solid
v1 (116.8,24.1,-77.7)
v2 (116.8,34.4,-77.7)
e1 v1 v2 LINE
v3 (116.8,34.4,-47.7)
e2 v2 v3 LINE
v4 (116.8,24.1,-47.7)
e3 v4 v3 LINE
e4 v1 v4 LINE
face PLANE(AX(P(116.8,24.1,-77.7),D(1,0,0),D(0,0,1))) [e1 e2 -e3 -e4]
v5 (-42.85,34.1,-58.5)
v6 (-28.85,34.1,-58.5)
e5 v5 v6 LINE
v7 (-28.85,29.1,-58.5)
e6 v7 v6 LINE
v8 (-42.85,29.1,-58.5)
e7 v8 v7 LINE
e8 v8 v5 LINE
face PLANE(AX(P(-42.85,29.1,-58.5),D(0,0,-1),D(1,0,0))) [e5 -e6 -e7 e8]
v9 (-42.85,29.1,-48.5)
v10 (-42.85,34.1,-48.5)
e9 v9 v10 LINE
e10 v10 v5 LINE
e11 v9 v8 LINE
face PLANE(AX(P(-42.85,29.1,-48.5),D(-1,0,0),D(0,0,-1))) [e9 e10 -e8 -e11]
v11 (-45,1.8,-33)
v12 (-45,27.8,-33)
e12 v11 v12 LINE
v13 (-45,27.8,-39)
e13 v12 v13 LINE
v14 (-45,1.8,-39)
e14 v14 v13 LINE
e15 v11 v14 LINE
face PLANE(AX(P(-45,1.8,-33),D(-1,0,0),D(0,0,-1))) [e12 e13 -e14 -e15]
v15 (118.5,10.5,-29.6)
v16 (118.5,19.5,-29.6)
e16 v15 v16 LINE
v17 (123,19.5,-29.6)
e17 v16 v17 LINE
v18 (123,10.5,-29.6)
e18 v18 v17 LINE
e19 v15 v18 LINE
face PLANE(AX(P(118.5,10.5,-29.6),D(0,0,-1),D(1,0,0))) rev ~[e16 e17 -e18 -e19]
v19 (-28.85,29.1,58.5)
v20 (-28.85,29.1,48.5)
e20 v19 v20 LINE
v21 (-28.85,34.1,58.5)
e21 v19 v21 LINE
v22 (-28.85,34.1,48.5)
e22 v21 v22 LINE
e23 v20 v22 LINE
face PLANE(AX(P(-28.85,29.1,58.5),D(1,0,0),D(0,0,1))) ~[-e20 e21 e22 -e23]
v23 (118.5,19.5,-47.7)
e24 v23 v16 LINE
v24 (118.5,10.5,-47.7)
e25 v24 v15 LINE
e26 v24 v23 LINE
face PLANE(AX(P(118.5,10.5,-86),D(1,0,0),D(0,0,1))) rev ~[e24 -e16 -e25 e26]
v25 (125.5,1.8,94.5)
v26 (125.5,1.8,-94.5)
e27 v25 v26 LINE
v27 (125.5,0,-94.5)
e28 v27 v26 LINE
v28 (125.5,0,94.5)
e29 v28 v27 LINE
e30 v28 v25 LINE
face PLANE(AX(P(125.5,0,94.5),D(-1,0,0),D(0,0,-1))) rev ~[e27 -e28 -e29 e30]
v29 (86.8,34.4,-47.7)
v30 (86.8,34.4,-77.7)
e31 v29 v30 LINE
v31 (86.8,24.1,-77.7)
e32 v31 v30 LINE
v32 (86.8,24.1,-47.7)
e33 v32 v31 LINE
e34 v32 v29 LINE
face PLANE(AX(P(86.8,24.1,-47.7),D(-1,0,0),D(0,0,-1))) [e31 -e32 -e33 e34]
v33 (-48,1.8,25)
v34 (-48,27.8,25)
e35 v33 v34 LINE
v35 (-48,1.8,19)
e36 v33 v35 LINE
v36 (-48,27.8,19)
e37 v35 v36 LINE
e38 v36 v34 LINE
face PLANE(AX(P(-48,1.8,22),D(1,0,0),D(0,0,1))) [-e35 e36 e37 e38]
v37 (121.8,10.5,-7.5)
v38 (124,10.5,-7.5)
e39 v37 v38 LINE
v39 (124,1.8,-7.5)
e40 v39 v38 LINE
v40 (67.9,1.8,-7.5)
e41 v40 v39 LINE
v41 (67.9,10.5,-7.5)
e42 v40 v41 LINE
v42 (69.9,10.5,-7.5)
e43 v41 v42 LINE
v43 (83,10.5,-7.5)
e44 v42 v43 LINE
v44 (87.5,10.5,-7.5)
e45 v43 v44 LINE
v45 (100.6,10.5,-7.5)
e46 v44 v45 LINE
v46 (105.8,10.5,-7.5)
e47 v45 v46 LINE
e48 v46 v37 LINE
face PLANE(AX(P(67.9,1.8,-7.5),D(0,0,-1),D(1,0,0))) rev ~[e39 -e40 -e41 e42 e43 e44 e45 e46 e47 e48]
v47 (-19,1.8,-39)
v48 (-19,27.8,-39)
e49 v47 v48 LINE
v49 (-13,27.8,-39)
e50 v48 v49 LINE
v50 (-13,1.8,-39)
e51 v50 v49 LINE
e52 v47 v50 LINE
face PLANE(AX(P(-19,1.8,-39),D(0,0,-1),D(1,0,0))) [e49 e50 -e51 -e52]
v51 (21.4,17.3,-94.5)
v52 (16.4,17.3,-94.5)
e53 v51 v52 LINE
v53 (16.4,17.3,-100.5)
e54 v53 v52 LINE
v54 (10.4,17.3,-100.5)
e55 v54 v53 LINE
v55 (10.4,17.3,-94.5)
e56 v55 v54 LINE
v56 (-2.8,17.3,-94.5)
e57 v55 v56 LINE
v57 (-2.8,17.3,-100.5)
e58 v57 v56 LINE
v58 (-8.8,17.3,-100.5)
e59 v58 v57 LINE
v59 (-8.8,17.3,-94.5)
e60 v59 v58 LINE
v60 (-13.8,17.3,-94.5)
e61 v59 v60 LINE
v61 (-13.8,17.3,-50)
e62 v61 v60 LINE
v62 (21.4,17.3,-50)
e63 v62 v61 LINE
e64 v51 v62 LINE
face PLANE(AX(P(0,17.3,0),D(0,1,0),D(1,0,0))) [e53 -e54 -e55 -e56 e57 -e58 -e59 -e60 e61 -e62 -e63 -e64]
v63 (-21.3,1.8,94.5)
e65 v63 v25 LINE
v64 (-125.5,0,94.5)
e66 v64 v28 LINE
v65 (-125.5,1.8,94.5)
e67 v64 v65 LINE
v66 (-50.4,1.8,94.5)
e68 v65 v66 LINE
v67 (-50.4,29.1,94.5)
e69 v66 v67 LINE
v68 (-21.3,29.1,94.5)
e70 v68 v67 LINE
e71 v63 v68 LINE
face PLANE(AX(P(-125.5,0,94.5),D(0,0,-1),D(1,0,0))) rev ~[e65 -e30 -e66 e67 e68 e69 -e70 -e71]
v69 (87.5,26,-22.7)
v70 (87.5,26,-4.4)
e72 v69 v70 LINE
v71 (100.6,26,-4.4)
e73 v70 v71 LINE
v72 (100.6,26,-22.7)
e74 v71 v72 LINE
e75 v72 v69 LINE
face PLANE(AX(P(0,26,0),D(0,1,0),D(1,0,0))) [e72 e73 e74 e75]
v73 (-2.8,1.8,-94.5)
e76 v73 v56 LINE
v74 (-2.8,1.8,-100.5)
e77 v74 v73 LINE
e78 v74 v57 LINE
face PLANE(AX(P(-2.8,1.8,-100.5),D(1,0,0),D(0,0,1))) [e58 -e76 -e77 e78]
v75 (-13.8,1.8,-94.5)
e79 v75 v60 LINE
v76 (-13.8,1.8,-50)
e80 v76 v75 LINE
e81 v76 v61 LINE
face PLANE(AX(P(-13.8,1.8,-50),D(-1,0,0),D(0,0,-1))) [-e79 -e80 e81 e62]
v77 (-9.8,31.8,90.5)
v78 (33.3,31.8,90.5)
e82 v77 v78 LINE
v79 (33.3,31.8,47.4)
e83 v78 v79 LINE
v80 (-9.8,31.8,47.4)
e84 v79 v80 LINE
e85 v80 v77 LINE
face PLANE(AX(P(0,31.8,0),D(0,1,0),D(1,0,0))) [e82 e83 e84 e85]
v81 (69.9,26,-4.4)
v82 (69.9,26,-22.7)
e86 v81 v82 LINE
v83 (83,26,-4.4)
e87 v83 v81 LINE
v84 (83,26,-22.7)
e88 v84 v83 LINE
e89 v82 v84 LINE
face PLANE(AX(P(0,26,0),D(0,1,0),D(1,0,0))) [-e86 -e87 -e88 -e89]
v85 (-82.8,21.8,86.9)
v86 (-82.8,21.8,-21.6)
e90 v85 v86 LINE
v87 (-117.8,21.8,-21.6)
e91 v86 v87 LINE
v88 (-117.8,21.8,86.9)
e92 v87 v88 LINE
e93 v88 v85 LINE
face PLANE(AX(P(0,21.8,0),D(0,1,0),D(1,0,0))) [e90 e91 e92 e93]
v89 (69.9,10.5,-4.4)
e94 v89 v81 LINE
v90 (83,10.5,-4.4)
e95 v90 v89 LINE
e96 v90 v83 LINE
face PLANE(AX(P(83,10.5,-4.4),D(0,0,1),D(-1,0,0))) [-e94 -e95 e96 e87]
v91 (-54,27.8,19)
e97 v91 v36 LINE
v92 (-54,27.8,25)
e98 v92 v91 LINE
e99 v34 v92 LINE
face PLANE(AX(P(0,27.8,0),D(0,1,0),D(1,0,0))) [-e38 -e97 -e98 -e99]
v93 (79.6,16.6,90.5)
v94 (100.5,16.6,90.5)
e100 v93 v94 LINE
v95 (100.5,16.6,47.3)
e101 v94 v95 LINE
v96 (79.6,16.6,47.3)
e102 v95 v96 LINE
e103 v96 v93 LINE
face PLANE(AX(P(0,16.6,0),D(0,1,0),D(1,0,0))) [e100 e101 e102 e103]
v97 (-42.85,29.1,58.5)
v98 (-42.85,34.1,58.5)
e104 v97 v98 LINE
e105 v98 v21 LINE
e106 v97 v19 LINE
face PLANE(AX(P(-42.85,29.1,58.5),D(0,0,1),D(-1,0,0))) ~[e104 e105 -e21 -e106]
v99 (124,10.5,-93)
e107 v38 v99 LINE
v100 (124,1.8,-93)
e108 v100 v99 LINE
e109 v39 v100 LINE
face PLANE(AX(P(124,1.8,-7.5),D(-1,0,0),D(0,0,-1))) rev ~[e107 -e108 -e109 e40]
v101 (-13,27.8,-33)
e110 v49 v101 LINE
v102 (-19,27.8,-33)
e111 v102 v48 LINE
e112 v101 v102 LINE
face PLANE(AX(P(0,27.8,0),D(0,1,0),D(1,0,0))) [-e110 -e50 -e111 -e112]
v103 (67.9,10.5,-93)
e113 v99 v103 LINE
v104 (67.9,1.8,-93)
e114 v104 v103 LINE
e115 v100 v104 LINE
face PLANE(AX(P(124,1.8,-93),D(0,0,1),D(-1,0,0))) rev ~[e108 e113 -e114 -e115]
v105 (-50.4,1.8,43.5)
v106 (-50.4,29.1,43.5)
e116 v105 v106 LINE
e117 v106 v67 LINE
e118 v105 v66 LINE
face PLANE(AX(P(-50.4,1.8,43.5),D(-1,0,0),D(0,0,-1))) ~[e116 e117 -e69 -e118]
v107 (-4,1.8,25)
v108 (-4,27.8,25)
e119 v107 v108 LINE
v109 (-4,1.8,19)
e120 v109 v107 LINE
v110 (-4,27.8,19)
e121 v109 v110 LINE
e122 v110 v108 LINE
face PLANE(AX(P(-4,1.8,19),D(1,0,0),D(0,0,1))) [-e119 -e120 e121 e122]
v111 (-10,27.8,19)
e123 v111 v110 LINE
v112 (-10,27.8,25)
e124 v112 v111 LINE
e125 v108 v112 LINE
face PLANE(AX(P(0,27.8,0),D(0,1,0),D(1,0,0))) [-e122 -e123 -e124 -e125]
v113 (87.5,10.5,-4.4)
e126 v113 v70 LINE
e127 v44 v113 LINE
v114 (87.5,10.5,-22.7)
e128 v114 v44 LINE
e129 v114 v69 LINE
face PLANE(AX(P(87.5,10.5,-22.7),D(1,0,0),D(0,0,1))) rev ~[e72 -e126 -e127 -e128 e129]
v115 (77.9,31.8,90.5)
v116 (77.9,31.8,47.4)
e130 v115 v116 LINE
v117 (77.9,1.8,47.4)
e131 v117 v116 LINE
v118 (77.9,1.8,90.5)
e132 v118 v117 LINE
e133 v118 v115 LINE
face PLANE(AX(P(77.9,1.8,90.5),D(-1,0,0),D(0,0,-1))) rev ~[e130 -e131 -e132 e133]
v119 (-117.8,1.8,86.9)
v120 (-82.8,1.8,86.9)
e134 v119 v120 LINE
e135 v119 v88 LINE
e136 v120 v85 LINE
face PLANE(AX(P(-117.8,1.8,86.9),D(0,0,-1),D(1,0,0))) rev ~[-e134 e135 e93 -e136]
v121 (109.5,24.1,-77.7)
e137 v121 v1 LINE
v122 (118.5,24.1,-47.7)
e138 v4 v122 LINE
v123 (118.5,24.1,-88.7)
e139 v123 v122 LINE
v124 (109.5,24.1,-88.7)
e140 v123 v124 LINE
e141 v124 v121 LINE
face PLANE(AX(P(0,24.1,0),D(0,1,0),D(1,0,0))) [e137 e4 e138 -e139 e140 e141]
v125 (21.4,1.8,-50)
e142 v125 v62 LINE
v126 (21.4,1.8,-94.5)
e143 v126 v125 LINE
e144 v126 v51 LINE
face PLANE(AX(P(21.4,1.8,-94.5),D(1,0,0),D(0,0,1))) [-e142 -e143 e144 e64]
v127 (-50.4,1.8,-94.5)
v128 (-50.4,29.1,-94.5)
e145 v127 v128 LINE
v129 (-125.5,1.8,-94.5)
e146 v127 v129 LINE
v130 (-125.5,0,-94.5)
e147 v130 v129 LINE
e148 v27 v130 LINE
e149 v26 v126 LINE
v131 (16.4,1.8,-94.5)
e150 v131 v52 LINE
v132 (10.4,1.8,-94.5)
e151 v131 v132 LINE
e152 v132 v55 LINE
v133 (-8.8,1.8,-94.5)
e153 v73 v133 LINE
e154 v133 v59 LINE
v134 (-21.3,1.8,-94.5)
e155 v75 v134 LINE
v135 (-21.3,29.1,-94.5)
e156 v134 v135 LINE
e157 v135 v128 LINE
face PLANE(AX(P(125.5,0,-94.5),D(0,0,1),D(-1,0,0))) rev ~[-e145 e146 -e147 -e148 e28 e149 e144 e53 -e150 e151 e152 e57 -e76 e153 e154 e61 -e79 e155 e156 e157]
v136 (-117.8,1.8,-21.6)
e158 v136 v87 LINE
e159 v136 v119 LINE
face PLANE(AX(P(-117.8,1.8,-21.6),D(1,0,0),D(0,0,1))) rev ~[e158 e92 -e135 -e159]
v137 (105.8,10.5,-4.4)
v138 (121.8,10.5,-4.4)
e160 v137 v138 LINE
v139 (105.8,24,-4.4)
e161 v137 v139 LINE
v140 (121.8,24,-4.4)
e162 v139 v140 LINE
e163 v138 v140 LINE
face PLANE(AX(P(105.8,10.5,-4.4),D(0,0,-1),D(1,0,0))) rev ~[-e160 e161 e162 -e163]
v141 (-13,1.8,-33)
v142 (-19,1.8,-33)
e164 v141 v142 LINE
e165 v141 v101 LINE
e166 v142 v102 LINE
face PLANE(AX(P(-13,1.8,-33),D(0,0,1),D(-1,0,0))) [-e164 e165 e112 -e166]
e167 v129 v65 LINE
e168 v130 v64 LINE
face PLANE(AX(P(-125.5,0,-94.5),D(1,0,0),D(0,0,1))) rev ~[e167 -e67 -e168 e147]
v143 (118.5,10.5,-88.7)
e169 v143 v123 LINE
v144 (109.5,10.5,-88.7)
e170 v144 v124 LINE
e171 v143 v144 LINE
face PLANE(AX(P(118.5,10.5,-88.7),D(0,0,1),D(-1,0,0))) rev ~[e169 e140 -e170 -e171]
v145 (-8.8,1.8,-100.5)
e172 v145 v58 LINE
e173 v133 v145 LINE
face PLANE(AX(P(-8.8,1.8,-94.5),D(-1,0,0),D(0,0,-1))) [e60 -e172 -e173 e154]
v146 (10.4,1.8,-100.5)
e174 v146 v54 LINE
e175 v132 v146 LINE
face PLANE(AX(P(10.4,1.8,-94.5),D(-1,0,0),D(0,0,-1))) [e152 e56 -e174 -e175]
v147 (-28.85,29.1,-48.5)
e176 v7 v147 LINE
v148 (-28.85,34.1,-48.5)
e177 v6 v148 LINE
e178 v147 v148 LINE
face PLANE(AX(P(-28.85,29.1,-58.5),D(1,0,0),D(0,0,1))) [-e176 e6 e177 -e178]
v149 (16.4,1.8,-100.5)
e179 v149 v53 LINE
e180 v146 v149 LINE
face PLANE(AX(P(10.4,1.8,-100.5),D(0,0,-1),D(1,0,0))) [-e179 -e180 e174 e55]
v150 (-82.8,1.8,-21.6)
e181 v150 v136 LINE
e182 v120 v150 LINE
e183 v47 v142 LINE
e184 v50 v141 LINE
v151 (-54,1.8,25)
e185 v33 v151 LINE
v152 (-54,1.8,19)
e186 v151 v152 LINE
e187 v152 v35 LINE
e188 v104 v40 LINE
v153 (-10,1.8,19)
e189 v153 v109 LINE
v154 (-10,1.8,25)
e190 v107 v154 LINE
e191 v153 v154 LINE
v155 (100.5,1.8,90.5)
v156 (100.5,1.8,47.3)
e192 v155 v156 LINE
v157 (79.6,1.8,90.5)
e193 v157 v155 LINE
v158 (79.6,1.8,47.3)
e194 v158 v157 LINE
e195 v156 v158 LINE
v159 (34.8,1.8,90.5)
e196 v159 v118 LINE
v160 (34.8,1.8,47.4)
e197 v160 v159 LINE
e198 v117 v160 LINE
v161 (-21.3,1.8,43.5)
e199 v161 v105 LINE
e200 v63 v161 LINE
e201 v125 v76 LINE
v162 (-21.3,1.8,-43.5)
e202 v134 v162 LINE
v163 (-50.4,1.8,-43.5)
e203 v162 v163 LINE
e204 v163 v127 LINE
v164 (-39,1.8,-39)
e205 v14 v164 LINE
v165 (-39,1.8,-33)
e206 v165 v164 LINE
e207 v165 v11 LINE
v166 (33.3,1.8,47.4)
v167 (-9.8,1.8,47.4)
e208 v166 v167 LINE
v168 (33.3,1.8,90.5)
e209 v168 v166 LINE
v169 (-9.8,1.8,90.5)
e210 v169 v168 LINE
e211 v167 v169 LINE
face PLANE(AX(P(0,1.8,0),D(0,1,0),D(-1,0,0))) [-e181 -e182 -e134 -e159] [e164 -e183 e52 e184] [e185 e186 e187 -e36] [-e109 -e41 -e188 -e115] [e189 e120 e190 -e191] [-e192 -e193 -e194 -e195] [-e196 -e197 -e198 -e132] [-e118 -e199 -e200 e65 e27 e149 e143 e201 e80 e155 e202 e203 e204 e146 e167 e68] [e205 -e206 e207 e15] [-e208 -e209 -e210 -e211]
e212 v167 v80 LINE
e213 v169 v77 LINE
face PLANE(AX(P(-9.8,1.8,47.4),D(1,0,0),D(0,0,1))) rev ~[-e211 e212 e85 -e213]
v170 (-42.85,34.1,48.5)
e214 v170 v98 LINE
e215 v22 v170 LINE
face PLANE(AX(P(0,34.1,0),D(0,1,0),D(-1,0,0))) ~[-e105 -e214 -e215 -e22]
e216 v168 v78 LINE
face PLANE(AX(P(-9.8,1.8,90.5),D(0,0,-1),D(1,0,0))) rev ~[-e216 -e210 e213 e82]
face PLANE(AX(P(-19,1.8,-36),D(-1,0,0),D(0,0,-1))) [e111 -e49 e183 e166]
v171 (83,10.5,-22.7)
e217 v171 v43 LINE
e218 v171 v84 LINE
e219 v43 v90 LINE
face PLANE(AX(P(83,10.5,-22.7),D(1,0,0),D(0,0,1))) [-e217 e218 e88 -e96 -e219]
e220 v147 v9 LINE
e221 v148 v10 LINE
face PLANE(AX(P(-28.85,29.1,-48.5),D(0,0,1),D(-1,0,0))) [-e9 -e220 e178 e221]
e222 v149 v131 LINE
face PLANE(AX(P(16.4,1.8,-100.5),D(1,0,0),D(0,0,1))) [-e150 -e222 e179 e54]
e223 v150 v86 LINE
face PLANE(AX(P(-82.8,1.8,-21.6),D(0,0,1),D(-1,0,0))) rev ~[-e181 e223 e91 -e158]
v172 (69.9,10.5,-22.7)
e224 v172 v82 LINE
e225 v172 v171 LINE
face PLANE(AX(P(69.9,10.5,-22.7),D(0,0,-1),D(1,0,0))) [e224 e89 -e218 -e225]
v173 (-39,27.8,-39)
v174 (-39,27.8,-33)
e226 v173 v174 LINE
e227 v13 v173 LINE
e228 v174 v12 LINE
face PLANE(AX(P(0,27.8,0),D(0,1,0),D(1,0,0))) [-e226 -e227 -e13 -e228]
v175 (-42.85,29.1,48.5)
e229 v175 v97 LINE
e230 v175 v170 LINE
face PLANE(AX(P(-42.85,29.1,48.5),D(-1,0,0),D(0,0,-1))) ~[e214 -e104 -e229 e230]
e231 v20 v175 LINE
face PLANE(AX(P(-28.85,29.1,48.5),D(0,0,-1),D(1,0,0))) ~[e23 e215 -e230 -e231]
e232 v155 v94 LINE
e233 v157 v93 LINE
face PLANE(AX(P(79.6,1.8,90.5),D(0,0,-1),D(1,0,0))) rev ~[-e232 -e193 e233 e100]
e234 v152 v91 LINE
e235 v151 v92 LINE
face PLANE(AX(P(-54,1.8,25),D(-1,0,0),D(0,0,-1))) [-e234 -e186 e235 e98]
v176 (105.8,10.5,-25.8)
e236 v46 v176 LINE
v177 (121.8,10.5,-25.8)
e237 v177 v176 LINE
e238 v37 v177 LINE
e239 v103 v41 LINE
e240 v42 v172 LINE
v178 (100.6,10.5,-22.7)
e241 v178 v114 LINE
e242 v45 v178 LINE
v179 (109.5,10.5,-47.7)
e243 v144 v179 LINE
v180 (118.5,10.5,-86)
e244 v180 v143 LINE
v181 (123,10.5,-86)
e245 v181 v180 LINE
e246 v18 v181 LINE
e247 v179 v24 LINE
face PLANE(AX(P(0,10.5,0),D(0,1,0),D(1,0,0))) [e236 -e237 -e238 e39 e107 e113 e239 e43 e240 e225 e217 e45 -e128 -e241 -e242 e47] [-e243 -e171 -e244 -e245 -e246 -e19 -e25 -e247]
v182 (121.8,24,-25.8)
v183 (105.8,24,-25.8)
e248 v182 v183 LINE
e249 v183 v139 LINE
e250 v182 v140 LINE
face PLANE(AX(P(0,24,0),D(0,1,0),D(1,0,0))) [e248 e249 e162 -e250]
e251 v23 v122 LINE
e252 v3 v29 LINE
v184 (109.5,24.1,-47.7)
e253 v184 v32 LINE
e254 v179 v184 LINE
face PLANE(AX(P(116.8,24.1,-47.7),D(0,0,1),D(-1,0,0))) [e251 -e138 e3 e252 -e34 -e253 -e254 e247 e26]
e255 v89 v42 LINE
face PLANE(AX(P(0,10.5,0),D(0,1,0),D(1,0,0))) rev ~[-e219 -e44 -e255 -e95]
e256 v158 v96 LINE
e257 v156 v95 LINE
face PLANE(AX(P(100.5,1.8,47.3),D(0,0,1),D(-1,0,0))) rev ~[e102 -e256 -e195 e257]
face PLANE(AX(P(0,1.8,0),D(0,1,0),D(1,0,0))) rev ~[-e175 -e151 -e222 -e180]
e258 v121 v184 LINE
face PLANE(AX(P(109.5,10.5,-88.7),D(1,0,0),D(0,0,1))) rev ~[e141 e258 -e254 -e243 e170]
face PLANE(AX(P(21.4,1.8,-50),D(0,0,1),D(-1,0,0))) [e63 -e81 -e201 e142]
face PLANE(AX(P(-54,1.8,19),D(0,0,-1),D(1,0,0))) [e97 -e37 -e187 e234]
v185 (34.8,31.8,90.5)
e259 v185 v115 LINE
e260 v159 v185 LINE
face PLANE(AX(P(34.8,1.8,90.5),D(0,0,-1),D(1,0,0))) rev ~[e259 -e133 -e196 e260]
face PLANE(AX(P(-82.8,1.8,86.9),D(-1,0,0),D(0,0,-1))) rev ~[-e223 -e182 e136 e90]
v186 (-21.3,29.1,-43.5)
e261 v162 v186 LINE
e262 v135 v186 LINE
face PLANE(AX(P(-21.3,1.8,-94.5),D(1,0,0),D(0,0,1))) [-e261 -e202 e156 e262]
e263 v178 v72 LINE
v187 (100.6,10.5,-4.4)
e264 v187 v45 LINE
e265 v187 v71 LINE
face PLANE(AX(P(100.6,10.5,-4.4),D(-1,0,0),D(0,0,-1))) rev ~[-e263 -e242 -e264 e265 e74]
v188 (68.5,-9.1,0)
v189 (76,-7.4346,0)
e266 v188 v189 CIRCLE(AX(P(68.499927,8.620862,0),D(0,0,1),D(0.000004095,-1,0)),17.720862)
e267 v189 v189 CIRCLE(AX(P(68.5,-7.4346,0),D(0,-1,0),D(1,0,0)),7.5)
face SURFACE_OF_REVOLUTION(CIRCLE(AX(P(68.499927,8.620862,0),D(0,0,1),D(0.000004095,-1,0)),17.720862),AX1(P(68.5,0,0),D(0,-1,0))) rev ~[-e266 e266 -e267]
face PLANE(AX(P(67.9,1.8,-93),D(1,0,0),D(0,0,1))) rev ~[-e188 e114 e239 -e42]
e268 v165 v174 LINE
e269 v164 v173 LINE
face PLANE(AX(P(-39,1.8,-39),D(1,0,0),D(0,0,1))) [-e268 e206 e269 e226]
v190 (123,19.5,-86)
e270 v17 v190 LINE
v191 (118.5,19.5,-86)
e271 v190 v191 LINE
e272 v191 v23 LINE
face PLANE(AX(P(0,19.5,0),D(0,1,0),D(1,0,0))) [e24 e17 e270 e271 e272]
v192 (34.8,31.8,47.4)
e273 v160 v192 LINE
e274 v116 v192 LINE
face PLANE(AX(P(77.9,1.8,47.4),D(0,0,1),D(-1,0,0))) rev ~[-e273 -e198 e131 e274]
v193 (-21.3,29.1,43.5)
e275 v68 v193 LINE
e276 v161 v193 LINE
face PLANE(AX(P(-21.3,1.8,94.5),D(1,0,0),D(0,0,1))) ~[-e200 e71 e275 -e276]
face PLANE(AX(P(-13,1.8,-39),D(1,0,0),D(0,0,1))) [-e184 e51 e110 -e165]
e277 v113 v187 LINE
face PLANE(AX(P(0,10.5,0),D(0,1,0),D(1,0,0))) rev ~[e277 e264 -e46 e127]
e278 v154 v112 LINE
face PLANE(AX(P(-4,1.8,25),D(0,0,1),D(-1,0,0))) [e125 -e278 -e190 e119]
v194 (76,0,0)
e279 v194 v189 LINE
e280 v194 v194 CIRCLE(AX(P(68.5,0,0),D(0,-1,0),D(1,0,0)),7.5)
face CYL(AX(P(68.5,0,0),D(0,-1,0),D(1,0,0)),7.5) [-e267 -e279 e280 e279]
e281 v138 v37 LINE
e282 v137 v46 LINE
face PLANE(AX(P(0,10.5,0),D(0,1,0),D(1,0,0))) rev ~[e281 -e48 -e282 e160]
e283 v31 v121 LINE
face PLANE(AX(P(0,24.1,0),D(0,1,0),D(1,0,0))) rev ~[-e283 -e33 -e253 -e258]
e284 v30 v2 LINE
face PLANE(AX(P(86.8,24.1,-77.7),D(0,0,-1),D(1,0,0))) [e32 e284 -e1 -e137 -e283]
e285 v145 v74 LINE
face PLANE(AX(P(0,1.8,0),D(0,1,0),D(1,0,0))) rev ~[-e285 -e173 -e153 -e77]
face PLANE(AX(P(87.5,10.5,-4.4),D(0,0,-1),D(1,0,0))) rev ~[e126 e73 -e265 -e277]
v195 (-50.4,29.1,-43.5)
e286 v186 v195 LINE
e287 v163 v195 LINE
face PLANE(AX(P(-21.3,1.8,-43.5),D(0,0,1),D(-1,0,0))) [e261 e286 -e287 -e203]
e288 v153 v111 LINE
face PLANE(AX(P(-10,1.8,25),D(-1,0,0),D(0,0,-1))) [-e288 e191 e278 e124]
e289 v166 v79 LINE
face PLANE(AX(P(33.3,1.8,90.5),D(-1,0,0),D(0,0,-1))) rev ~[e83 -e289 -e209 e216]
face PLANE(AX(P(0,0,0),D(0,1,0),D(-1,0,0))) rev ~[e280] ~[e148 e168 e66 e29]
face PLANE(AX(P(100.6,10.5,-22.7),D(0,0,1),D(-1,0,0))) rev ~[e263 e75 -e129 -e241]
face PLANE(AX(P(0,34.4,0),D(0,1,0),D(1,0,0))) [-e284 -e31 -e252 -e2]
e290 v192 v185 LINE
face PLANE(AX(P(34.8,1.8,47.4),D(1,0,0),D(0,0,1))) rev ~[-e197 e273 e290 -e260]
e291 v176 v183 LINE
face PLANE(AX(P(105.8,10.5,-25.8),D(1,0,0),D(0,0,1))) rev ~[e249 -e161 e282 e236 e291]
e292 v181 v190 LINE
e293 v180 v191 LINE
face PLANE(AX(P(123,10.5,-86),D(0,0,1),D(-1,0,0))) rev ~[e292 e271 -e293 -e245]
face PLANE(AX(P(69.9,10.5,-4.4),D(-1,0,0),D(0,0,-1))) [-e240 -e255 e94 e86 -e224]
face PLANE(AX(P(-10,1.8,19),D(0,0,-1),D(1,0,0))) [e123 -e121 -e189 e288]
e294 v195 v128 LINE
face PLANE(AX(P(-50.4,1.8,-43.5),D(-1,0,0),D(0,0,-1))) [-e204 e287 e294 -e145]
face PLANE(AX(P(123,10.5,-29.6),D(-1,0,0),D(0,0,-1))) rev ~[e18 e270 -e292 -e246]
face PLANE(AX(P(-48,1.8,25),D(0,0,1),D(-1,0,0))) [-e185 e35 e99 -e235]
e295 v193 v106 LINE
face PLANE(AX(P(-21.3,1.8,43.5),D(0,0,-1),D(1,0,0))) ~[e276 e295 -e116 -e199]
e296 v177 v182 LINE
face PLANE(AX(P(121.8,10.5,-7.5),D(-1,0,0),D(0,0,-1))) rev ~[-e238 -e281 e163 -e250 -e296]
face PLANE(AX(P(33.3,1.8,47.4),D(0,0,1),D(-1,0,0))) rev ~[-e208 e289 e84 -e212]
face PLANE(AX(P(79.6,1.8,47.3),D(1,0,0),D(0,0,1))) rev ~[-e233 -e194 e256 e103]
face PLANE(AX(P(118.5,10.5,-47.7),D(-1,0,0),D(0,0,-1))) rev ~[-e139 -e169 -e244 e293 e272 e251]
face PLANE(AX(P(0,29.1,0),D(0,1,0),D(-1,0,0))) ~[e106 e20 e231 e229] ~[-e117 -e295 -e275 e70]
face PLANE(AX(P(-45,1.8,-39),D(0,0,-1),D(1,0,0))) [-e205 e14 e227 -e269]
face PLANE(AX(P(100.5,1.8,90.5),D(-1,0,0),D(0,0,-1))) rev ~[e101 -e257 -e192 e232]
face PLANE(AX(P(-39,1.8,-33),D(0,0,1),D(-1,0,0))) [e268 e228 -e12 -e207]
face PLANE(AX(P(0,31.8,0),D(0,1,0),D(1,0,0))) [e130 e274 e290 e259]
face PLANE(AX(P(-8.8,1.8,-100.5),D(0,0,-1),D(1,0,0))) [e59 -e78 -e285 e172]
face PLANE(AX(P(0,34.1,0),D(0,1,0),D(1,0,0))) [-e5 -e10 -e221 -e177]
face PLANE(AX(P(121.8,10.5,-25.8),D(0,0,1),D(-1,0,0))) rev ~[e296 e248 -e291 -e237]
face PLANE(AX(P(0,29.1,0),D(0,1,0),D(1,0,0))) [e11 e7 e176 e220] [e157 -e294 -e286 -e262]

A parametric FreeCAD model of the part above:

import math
import FreeCAD as App
import Part
import Sketcher
Q = App.Units.Quantity

doc = App.newDocument("Part")
body = doc.addObject("PartDesign::Body", "Body")

# Sketch on XZ plane
sketch1 = body.newObject("Sketcher::SketchObject", "Sketch")
sketch1.AttachmentSupport = (doc.getObject("XZ_Plane"), [""])
sketch1.MapMode = "FlatFace"
sketch1.addGeometry([
    Part.LineSegment(App.Vector(-126, -94, 0), App.Vector(-126, 94, 0)),
    Part.LineSegment(App.Vector(-126, 94, 0), App.Vector(126, 94, 0)),
    Part.LineSegment(App.Vector(126, 94, 0), App.Vector(126, -94, 0)),
    Part.LineSegment(App.Vector(126, -94, 0), App.Vector(-126, -94, 0)),
], False)
sketch1.addConstraint([
    Sketcher.Constraint("Coincident", 0, 2, 1, 1),
    Sketcher.Constraint("Coincident", 1, 2, 2, 1),
    Sketcher.Constraint("Coincident", 2, 2, 3, 1),
    Sketcher.Constraint("Coincident", 3, 2, 0, 1),
    Sketcher.Constraint("Vertical", 0),
    Sketcher.Constraint("Horizontal", 1),
    Sketcher.Constraint("Vertical", 2),
    Sketcher.Constraint("Horizontal", 3),
    Sketcher.Constraint("Symmetric", 0, 2, 2, 2, -1, 1),
    Sketcher.Constraint("DistanceX", 1, 1, 1, 2, Q("251 mm")),
    Sketcher.Constraint("DistanceY", 0, 1, 0, 2, Q("189 mm")),
])
pad1 = body.newObject("PartDesign::Pad", "Pad")
pad1.Profile = sketch1
pad1.Length = 1.8
pad1.Reversed = True

# Sketch on XZ plane
sketch2 = body.newObject("Sketcher::SketchObject", "Sketch001")
sketch2.AttachmentSupport = (doc.getObject("XZ_Plane"), [""])
sketch2.MapMode = "FlatFace"
sketch2.AttachmentOffset = App.Placement(App.Vector(0, 0, -1.8), App.Rotation())
sketch2.addGeometry([
    Part.LineSegment(App.Vector(124, -8, 0), App.Vector(124, -93, 0)),
    Part.LineSegment(App.Vector(124, -93, 0), App.Vector(68, -93, 0)),
    Part.LineSegment(App.Vector(68, -93, 0), App.Vector(68, -8, 0)),
    Part.LineSegment(App.Vector(68, -8, 0), App.Vector(124, -8, 0)),
], False)
sketch2.addConstraint([
    Sketcher.Constraint("Coincident", 0, 2, 1, 1),
    Sketcher.Constraint("Coincident", 1, 2, 2, 1),
    Sketcher.Constraint("Coincident", 2, 2, 3, 1),
    Sketcher.Constraint("Coincident", 3, 2, 0, 1),
    Sketcher.Constraint("Vertical", 0),
    Sketcher.Constraint("Horizontal", 1),
    Sketcher.Constraint("Vertical", 2),
    Sketcher.Constraint("Horizontal", 3),
    Sketcher.Constraint("DistanceX", 1, 2, 1, 1, Q("56.1 mm")),
    Sketcher.Constraint("DistanceY", 0, 2, 0, 1, Q("85.5 mm")),
    Sketcher.Constraint("DistanceX", -1, 1, 0, 2, Q("124 mm")),
    Sketcher.Constraint("DistanceY", 0, 2, -1, 1, Q("93 mm")),
])
pad2 = body.newObject("PartDesign::Pad", "Pad001")
pad2.Profile = sketch2
pad2.Length = 8.7
pad2.Reversed = True

# Sketch on XZ plane
sketch3 = body.newObject("Sketcher::SketchObject", "Sketch002")
sketch3.AttachmentSupport = (doc.getObject("XZ_Plane"), [""])
sketch3.MapMode = "FlatFace"
sketch3.AttachmentOffset = App.Placement(App.Vector(0, 0, -10.5), App.Rotation())
sketch3.addGeometry([
    Part.LineSegment(App.Vector(122, -26, 0), App.Vector(106, -26, 0)),
    Part.LineSegment(App.Vector(106, -26, 0), App.Vector(106, -4, 0)),
    Part.LineSegment(App.Vector(106, -4, 0), App.Vector(122, -4, 0)),
    Part.LineSegment(App.Vector(122, -4, 0), App.Vector(122, -26, 0)),
], False)
sketch3.addConstraint([
    Sketcher.Constraint("Coincident", 0, 2, 1, 1),
    Sketcher.Constraint("Coincident", 1, 2, 2, 1),
    Sketcher.Constraint("Coincident", 2, 2, 3, 1),
    Sketcher.Constraint("Coincident", 3, 2, 0, 1),
    Sketcher.Constraint("Horizontal", 0),
    Sketcher.Constraint("Vertical", 1),
    Sketcher.Constraint("Horizontal", 2),
    Sketcher.Constraint("Vertical", 3),
    Sketcher.Constraint("DistanceX", 0, 2, 0, 1, Q("16 mm")),
    Sketcher.Constraint("DistanceY", 1, 1, 1, 2, Q("21.4 mm")),
    Sketcher.Constraint("DistanceX", -1, 1, 0, 2, Q("105.8 mm")),
    Sketcher.Constraint("DistanceY", 0, 2, -1, 1, Q("25.8 mm")),
])
pad3 = body.newObject("PartDesign::Pad", "Pad002")
pad3.Profile = sketch3
pad3.Length = 13.5
pad3.Reversed = True

# Sketch on XZ plane
sketch4 = body.newObject("Sketcher::SketchObject", "Sketch003")
sketch4.AttachmentSupport = (doc.getObject("XZ_Plane"), [""])
sketch4.MapMode = "FlatFace"
sketch4.AttachmentOffset = App.Placement(App.Vector(0, 0, -10.5), App.Rotation())
sketch4.addGeometry([
    Part.LineSegment(App.Vector(83, -23, 0), App.Vector(70, -23, 0)),  # 0
    Part.LineSegment(App.Vector(70, -23, 0), App.Vector(70, -4, 0)),  # 1
    Part.LineSegment(App.Vector(70, -4, 0), App.Vector(83, -4, 0)),  # 2
    Part.LineSegment(App.Vector(83, -4, 0), App.Vector(83, -23, 0)),  # 3
    Part.LineSegment(App.Vector(88, -23, 0), App.Vector(88, -4, 0)),  # 4
    Part.LineSegment(App.Vector(88, -4, 0), App.Vector(101, -4, 0)),  # 5
    Part.LineSegment(App.Vector(101, -4, 0), App.Vector(101, -23, 0)),  # 6
    Part.LineSegment(App.Vector(101, -23, 0), App.Vector(88, -23, 0)),  # 7
], False)
sketch4.addConstraint([
    Sketcher.Constraint("Coincident", 0, 2, 1, 1),
    Sketcher.Constraint("Coincident", 1, 2, 2, 1),
    Sketcher.Constraint("Coincident", 2, 2, 3, 1),
    Sketcher.Constraint("Coincident", 3, 2, 0, 1),
    Sketcher.Constraint("Coincident", 4, 2, 5, 1),
    Sketcher.Constraint("Coincident", 5, 2, 6, 1),
    Sketcher.Constraint("Coincident", 6, 2, 7, 1),
    Sketcher.Constraint("Coincident", 7, 2, 4, 1),
    Sketcher.Constraint("Horizontal", 0),
    Sketcher.Constraint("Vertical", 1),
    Sketcher.Constraint("Horizontal", 2),
    Sketcher.Constraint("Vertical", 3),
    Sketcher.Constraint("Vertical", 4),
    Sketcher.Constraint("Horizontal", 5),
    Sketcher.Constraint("Vertical", 6),
    Sketcher.Constraint("Horizontal", 7),
    Sketcher.Constraint("Horizontal", 2, 2, 4, 2),
    Sketcher.Constraint("Horizontal", 3, 2, 6, 2),
    Sketcher.Constraint("Equal", 2, 5),
    Sketcher.Constraint("DistanceX", 0, 2, 0, 1, Q("13.1 mm")),
    Sketcher.Constraint("DistanceY", 1, 1, 1, 2, Q("18.3 mm")),
    Sketcher.Constraint("DistanceX", 2, 2, 4, 2, Q("4.5 mm")),
    Sketcher.Constraint("DistanceX", -1, 1, 2, 2, Q("83 mm")),
    Sketcher.Constraint("DistanceY", 0, 2, -1, 1, Q("22.7 mm")),
])
pad4 = body.newObject("PartDesign::Pad", "Pad003")
pad4.Profile = sketch4
pad4.Length = 15.5
pad4.Reversed = True

# Sketch on XZ plane
sketch5 = body.newObject("Sketcher::SketchObject", "Sketch004")
sketch5.AttachmentSupport = (doc.getObject("XZ_Plane"), [""])
sketch5.MapMode = "FlatFace"
sketch5.AttachmentOffset = App.Placement(App.Vector(0, 0, -10.5), App.Rotation())
sketch5.addGeometry([
    Part.LineSegment(App.Vector(123, -29.6, 0), App.Vector(123, -86, 0)),
    Part.LineSegment(App.Vector(123, -86, 0), App.Vector(118.5, -86, 0)),
    Part.LineSegment(App.Vector(118.5, -86, 0), App.Vector(118.5, -29.6, 0)),
    Part.LineSegment(App.Vector(118.5, -29.6, 0), App.Vector(123, -29.6, 0)),
], False)
sketch5.addConstraint([
    Sketcher.Constraint("Coincident", 0, 2, 1, 1),
    Sketcher.Constraint("Coincident", 1, 2, 2, 1),
    Sketcher.Constraint("Coincident", 2, 2, 3, 1),
    Sketcher.Constraint("Coincident", 3, 2, 0, 1),
    Sketcher.Constraint("Vertical", 0),
    Sketcher.Constraint("Horizontal", 1),
    Sketcher.Constraint("Vertical", 2),
    Sketcher.Constraint("Horizontal", 3),
    Sketcher.Constraint("DistanceX", 1, 2, 1, 1, Q("4.5 mm")),
    Sketcher.Constraint("DistanceY", 0, 2, 0, 1, Q("56.4 mm")),
    Sketcher.Constraint("DistanceX", -1, 1, 0, 2, Q("123 mm")),
    Sketcher.Constraint("DistanceY", 0, 2, -1, 1, Q("86 mm")),
])
pad5 = body.newObject("PartDesign::Pad", "Pad004")
pad5.Profile = sketch5
pad5.Length = 9
pad5.Reversed = True

# Sketch on XZ plane
sketch6 = body.newObject("Sketcher::SketchObject", "Sketch005")
sketch6.AttachmentSupport = (doc.getObject("XZ_Plane"), [""])
sketch6.MapMode = "FlatFace"
sketch6.AttachmentOffset = App.Placement(App.Vector(0, 0, -10.5), App.Rotation())
sketch6.addGeometry([
    Part.LineSegment(App.Vector(110, -48, 0), App.Vector(118, -48, 0)),
    Part.LineSegment(App.Vector(118, -48, 0), App.Vector(118, -89, 0)),
    Part.LineSegment(App.Vector(118, -89, 0), App.Vector(110, -89, 0)),
    Part.LineSegment(App.Vector(110, -89, 0), App.Vector(110, -48, 0)),
], False)
sketch6.addConstraint([
    Sketcher.Constraint("Coincident", 0, 2, 1, 1),
    Sketcher.Constraint("Coincident", 1, 2, 2, 1),
    Sketcher.Constraint("Coincident", 2, 2, 3, 1),
    Sketcher.Constraint("Coincident", 3, 2, 0, 1),
    Sketcher.Constraint("Horizontal", 0),
    Sketcher.Constraint("Vertical", 1),
    Sketcher.Constraint("Horizontal", 2),
    Sketcher.Constraint("Vertical", 3),
    Sketcher.Constraint("DistanceX", 0, 1, 0, 2, Q("9 mm")),
    Sketcher.Constraint("DistanceY", 1, 2, 1, 1, Q("41 mm")),
    Sketcher.Constraint("DistanceX", -1, 1, 0, 2, Q("118.5 mm")),
    Sketcher.Constraint("DistanceY", 0, 2, -1, 1, Q("47.7 mm")),
])
pad6 = body.newObject("PartDesign::Pad", "Pad005")
pad6.Profile = sketch6
pad6.Length = 13.6
pad6.Reversed = True

# Sketch on XZ plane
sketch7 = body.newObject("Sketcher::SketchObject", "Sketch006")
sketch7.AttachmentSupport = (doc.getObject("XZ_Plane"), [""])
sketch7.MapMode = "FlatFace"
sketch7.AttachmentOffset = App.Placement(App.Vector(0, 0, -24.1), App.Rotation())
sketch7.addGeometry([
    Part.LineSegment(App.Vector(87, -48, 0), App.Vector(117, -48, 0)),
    Part.LineSegment(App.Vector(117, -48, 0), App.Vector(117, -78, 0)),
    Part.LineSegment(App.Vector(117, -78, 0), App.Vector(87, -78, 0)),
    Part.LineSegment(App.Vector(87, -78, 0), App.Vector(87, -48, 0)),
], False)
sketch7.addConstraint([
    Sketcher.Constraint("Coincident", 0, 2, 1, 1),
    Sketcher.Constraint("Coincident", 1, 2, 2, 1),
    Sketcher.Constraint("Coincident", 2, 2, 3, 1),
    Sketcher.Constraint("Coincident", 3, 2, 0, 1),
    Sketcher.Constraint("Horizontal", 0),
    Sketcher.Constraint("Vertical", 1),
    Sketcher.Constraint("Horizontal", 2),
    Sketcher.Constraint("Vertical", 3),
    Sketcher.Constraint("Equal", 2, 1),
    Sketcher.Constraint("DistanceX", 0, 1, 0, 2, Q("30 mm")),
    Sketcher.Constraint("DistanceX", -1, 1, 0, 2, Q("116.8 mm")),
    Sketcher.Constraint("DistanceY", 0, 2, -1, 1, Q("47.7 mm")),
])
pad7 = body.newObject("PartDesign::Pad", "Pad006")
pad7.Profile = sketch7
pad7.Length = 10.3
pad7.Reversed = True

# Sketch on XZ plane
sketch8 = body.newObject("Sketcher::SketchObject", "Sketch007")
sketch8.AttachmentSupport = (doc.getObject("XZ_Plane"), [""])
sketch8.MapMode = "FlatFace"
sketch8.AttachmentOffset = App.Placement(App.Vector(0, 0, -1.8), App.Rotation())
sketch8.addGeometry([
    Part.LineSegment(App.Vector(-21, -44, 0), App.Vector(-21, -94, 0)),
    Part.LineSegment(App.Vector(-21, -94, 0), App.Vector(-50, -94, 0)),
    Part.LineSegment(App.Vector(-50, -94, 0), App.Vector(-50, -44, 0)),
    Part.LineSegment(App.Vector(-50, -44, 0), App.Vector(-21, -44, 0)),
], False)
sketch8.addConstraint([
    Sketcher.Constraint("Coincident", 0, 2, 1, 1),
    Sketcher.Constraint("Coincident", 1, 2, 2, 1),
    Sketcher.Constraint("Coincident", 2, 2, 3, 1),
    Sketcher.Constraint("Coincident", 3, 2, 0, 1),
    Sketcher.Constraint("Vertical", 0),
    Sketcher.Constraint("Horizontal", 1),
    Sketcher.Constraint("Vertical", 2),
    Sketcher.Constraint("Horizontal", 3),
    Sketcher.Constraint("DistanceY", 0, 2, 0, 1, Q("51 mm")),
    Sketcher.Constraint("DistanceX", 1, 2, 1, 1, Q("29.1 mm")),
    Sketcher.Constraint("DistanceX", 0, 2, -1, 1, Q("21.3 mm")),
    Sketcher.Constraint("DistanceY", 0, 2, -1, 1, Q("94.5 mm")),
])
pad8 = body.newObject("PartDesign::Pad", "Pad007")
pad8.Profile = sketch8
pad8.Length = 27.3
pad8.Reversed = True

# Sketch on XZ plane
sketch9 = body.newObject("Sketcher::SketchObject", "Sketch008")
sketch9.AttachmentSupport = (doc.getObject("XZ_Plane"), [""])
sketch9.MapMode = "FlatFace"
sketch9.AttachmentOffset = App.Placement(App.Vector(0, 0, -29.1), App.Rotation())
sketch9.addGeometry([
    Part.LineSegment(App.Vector(-43, -48, 0), App.Vector(-29, -48, 0)),
    Part.LineSegment(App.Vector(-29, -48, 0), App.Vector(-29, -58, 0)),
    Part.LineSegment(App.Vector(-29, -58, 0), App.Vector(-43, -58, 0)),
    Part.LineSegment(App.Vector(-43, -58, 0), App.Vector(-43, -48, 0)),
], False)
sketch9.addConstraint([
    Sketcher.Constraint("Coincident", 0, 2, 1, 1),
    Sketcher.Constraint("Coincident", 1, 2, 2, 1),
    Sketcher.Constraint("Coincident", 2, 2, 3, 1),
    Sketcher.Constraint("Coincident", 3, 2, 0, 1),
    Sketcher.Constraint("Horizontal", 0),
    Sketcher.Constraint("Vertical", 1),
    Sketcher.Constraint("Horizontal", 2),
    Sketcher.Constraint("Vertical", 3),
    Sketcher.Constraint("DistanceX", 0, 1, 0, 2, Q("14 mm")),
    Sketcher.Constraint("DistanceY", 1, 2, 1, 1, Q("10 mm")),
    Sketcher.Constraint("DistanceY", 0, 2, -1, 1, Q("48.5 mm")),
    Sketcher.Constraint("DistanceX", 0, 2, -1, 1, Q("28.85 mm")),
])
pad9 = body.newObject("PartDesign::Pad", "Pad008")
pad9.Profile = sketch9
pad9.Length = 5
pad9.Reversed = True
doc.recompute()

mirrored = body.newObject("PartDesign::Mirrored", "Mirrored")
mirrored.Originals = [pad8, pad9]
mirrored.MirrorPlane = (doc.getObject("XY_Plane"), [""])
body.Tip = mirrored

# Sketch on XZ plane
sketch10 = body.newObject("Sketcher::SketchObject", "Sketch009")
sketch10.AttachmentSupport = (doc.getObject("XZ_Plane"), [""])
sketch10.MapMode = "FlatFace"
sketch10.AttachmentOffset = App.Placement(App.Vector(0, 0, -1.8), App.Rotation())
sketch10.addGeometry([
    Part.LineSegment(App.Vector(21, -50, 0), App.Vector(21, -94, 0)),  # 0
    Part.LineSegment(App.Vector(21, -94, 0), App.Vector(16, -94, 0)),  # 1
    Part.LineSegment(App.Vector(16, -94, 0), App.Vector(16, -100, 0)),  # 2
    Part.LineSegment(App.Vector(16, -100, 0), App.Vector(10, -100, 0)),  # 3
    Part.LineSegment(App.Vector(10, -100, 0), App.Vector(10, -94, 0)),  # 4
    Part.LineSegment(App.Vector(10, -94, 0), App.Vector(-3, -94, 0)),  # 5
    Part.LineSegment(App.Vector(-3, -94, 0), App.Vector(-3, -100, 0)),  # 6
    Part.LineSegment(App.Vector(-3, -100, 0), App.Vector(-9, -100, 0)),  # 7
    Part.LineSegment(App.Vector(-9, -100, 0), App.Vector(-9, -94, 0)),  # 8
    Part.LineSegment(App.Vector(-9, -94, 0), App.Vector(-14, -94, 0)),  # 9
    Part.LineSegment(App.Vector(-14, -94, 0), App.Vector(-14, -50, 0)),  # 10
    Part.LineSegment(App.Vector(-14, -50, 0), App.Vector(21, -50, 0)),  # 11
], False)
sketch10.addConstraint([
    Sketcher.Constraint("Coincident", 0, 2, 1, 1),
    Sketcher.Constraint("Coincident", 1, 2, 2, 1),
    Sketcher.Constraint("Coincident", 2, 2, 3, 1),
    Sketcher.Constraint("Coincident", 3, 2, 4, 1),
    Sketcher.Constraint("Coincident", 4, 2, 5, 1),
    Sketcher.Constraint("Coincident", 5, 2, 6, 1),
    Sketcher.Constraint("Coincident", 6, 2, 7, 1),
    Sketcher.Constraint("Coincident", 7, 2, 8, 1),
    Sketcher.Constraint("Coincident", 8, 2, 9, 1),
    Sketcher.Constraint("Coincident", 9, 2, 10, 1),
    Sketcher.Constraint("Coincident", 10, 2, 11, 1),
    Sketcher.Constraint("Coincident", 11, 2, 0, 1),
    Sketcher.Constraint("Vertical", 0),
    Sketcher.Constraint("Horizontal", 1),
    Sketcher.Constraint("Vertical", 2),
    Sketcher.Constraint("Horizontal", 3),
    Sketcher.Constraint("Vertical", 4),
    Sketcher.Constraint("Horizontal", 5),
    Sketcher.Constraint("Vertical", 6),
    Sketcher.Constraint("Horizontal", 7),
    Sketcher.Constraint("Vertical", 8),
    Sketcher.Constraint("Horizontal", 9),
    Sketcher.Constraint("Vertical", 10),
    Sketcher.Constraint("Horizontal", 11),
    Sketcher.Constraint("Horizontal", 1, 2, 4, 2),
    Sketcher.Constraint("Horizontal", 3, 2, 6, 2),
    Sketcher.Constraint("Horizontal", 5, 2, 8, 2),
    Sketcher.Constraint("Equal", 3, 7),
    Sketcher.Constraint("Equal", 1, 9),
    Sketcher.Constraint("Equal", 7, 2),
    Sketcher.Constraint("DistanceX", 1, 2, 1, 1, Q("5 mm")),
    Sketcher.Constraint("DistanceX", 3, 2, 3, 1, Q("6 mm")),
    Sketcher.Constraint("DistanceX", 11, 1, 11, 2, Q("35.2 mm")),
    Sketcher.Constraint("DistanceY", 0, 2, 0, 1, Q("44.5 mm")),
    Sketcher.Constraint("DistanceY", 10, 2, -1, 1, Q("50 mm")),
    Sketcher.Constraint("DistanceX", -1, 1, 0, 2, Q("21.4 mm")),
])
pad10 = body.newObject("PartDesign::Pad", "Pad009")
pad10.Profile = sketch10
pad10.Length = 15.5
pad10.Reversed = True

# Sketch on XZ plane
sketch11 = body.newObject("Sketcher::SketchObject", "Sketch010")
sketch11.AttachmentSupport = (doc.getObject("XZ_Plane"), [""])
sketch11.MapMode = "FlatFace"
sketch11.AttachmentOffset = App.Placement(App.Vector(0, 0, -1.8), App.Rotation())
sketch11.addGeometry([
    Part.LineSegment(App.Vector(-10, 47, 0), App.Vector(-10, 90, 0)),  # 0
    Part.LineSegment(App.Vector(-10, 90, 0), App.Vector(33, 90, 0)),  # 1
    Part.LineSegment(App.Vector(33, 90, 0), App.Vector(33, 47, 0)),  # 2
    Part.LineSegment(App.Vector(33, 47, 0), App.Vector(-10, 47, 0)),  # 3
    Part.LineSegment(App.Vector(35, 47, 0), App.Vector(35, 90, 0)),  # 4
    Part.LineSegment(App.Vector(35, 90, 0), App.Vector(78, 90, 0)),  # 5
    Part.LineSegment(App.Vector(78, 90, 0), App.Vector(78, 47, 0)),  # 6
    Part.LineSegment(App.Vector(78, 47, 0), App.Vector(35, 47, 0)),  # 7
], False)
sketch11.addConstraint([
    Sketcher.Constraint("Coincident", 0, 2, 1, 1),
    Sketcher.Constraint("Coincident", 1, 2, 2, 1),
    Sketcher.Constraint("Coincident", 2, 2, 3, 1),
    Sketcher.Constraint("Coincident", 3, 2, 0, 1),
    Sketcher.Constraint("Coincident", 4, 2, 5, 1),
    Sketcher.Constraint("Coincident", 5, 2, 6, 1),
    Sketcher.Constraint("Coincident", 6, 2, 7, 1),
    Sketcher.Constraint("Coincident", 7, 2, 4, 1),
    Sketcher.Constraint("Vertical", 0),
    Sketcher.Constraint("Horizontal", 1),
    Sketcher.Constraint("Vertical", 2),
    Sketcher.Constraint("Horizontal", 3),
    Sketcher.Constraint("Vertical", 4),
    Sketcher.Constraint("Horizontal", 5),
    Sketcher.Constraint("Vertical", 6),
    Sketcher.Constraint("Horizontal", 7),
    Sketcher.Constraint("Horizontal", 1, 2, 4, 2),
    Sketcher.Constraint("Horizontal", 3, 2, 6, 2),
    Sketcher.Constraint("Equal", 3, 5),
    Sketcher.Constraint("Equal", 7, 0),
    Sketcher.Constraint("DistanceX", 1, 1, 1, 2, Q("43.1 mm")),
    Sketcher.Constraint("DistanceX", 1, 2, 4, 2, Q("1.5 mm")),
    Sketcher.Constraint("DistanceX", 0, 2, -1, 1, Q("9.8 mm")),
    Sketcher.Constraint("DistanceY", -1, 1, 0, 2, Q("90.5 mm")),
])
pad11 = body.newObject("PartDesign::Pad", "Pad010")
pad11.Profile = sketch11
pad11.Length = 30
pad11.Reversed = True

# Sketch on XZ plane
sketch12 = body.newObject("Sketcher::SketchObject", "Sketch011")
sketch12.AttachmentSupport = (doc.getObject("XZ_Plane"), [""])
sketch12.MapMode = "FlatFace"
sketch12.AttachmentOffset = App.Placement(App.Vector(0, 0, -1.8), App.Rotation())
sketch12.addGeometry([
    Part.LineSegment(App.Vector(-118, -22, 0), App.Vector(-118, 87, 0)),
    Part.LineSegment(App.Vector(-118, 87, 0), App.Vector(-83, 87, 0)),
    Part.LineSegment(App.Vector(-83, 87, 0), App.Vector(-83, -22, 0)),
    Part.LineSegment(App.Vector(-83, -22, 0), App.Vector(-118, -22, 0)),
], False)
sketch12.addConstraint([
    Sketcher.Constraint("Coincident", 0, 2, 1, 1),
    Sketcher.Constraint("Coincident", 1, 2, 2, 1),
    Sketcher.Constraint("Coincident", 2, 2, 3, 1),
    Sketcher.Constraint("Coincident", 3, 2, 0, 1),
    Sketcher.Constraint("Vertical", 0),
    Sketcher.Constraint("Horizontal", 1),
    Sketcher.Constraint("Vertical", 2),
    Sketcher.Constraint("Horizontal", 3),
    Sketcher.Constraint("DistanceX", 1, 1, 1, 2, Q("35 mm")),
    Sketcher.Constraint("DistanceY", 0, 1, 0, 2, Q("108.5 mm")),
    Sketcher.Constraint("DistanceX", 0, 2, -1, 1, Q("117.8 mm")),
    Sketcher.Constraint("DistanceY", -1, 1, 0, 2, Q("86.9 mm")),
])
pad12 = body.newObject("PartDesign::Pad", "Pad011")
pad12.Profile = sketch12
pad12.Length = 20
pad12.Reversed = True

# Sketch on XZ plane
sketch13 = body.newObject("Sketcher::SketchObject", "Sketch012")
sketch13.AttachmentSupport = (doc.getObject("XZ_Plane"), [""])
sketch13.MapMode = "FlatFace"
sketch13.AttachmentOffset = App.Placement(App.Vector(0, 0, -1.8), App.Rotation())
sketch13.addGeometry([
    Part.LineSegment(App.Vector(-48, 25, 0), App.Vector(-48, 19, 0)),  # 0
    Part.LineSegment(App.Vector(-48, 19, 0), App.Vector(-54, 19, 0)),  # 1
    Part.LineSegment(App.Vector(-54, 19, 0), App.Vector(-54, 25, 0)),  # 2
    Part.LineSegment(App.Vector(-54, 25, 0), App.Vector(-48, 25, 0)),  # 3
    Part.LineSegment(App.Vector(-10, 25, 0), App.Vector(-4, 25, 0)),  # 4
    Part.LineSegment(App.Vector(-4, 25, 0), App.Vector(-4, 19, 0)),  # 5
    Part.LineSegment(App.Vector(-4, 19, 0), App.Vector(-10, 19, 0)),  # 6
    Part.LineSegment(App.Vector(-10, 19, 0), App.Vector(-10, 25, 0)),  # 7
    Part.LineSegment(App.Vector(-19, -39, 0), App.Vector(-19, -33, 0)),  # 8
    Part.LineSegment(App.Vector(-19, -33, 0), App.Vector(-13, -33, 0)),  # 9
    Part.LineSegment(App.Vector(-13, -33, 0), App.Vector(-13, -39, 0)),  # 10
    Part.LineSegment(App.Vector(-13, -39, 0), App.Vector(-19, -39, 0)),  # 11
    Part.LineSegment(App.Vector(-45, -33, 0), App.Vector(-39, -33, 0)),  # 12
    Part.LineSegment(App.Vector(-39, -33, 0), App.Vector(-39, -39, 0)),  # 13
    Part.LineSegment(App.Vector(-39, -39, 0), App.Vector(-45, -39, 0)),  # 14
    Part.LineSegment(App.Vector(-45, -39, 0), App.Vector(-45, -33, 0)),  # 15
], False)
sketch13.addConstraint([
    Sketcher.Constraint("Coincident", 0, 2, 1, 1),
    Sketcher.Constraint("Coincident", 1, 2, 2, 1),
    Sketcher.Constraint("Coincident", 2, 2, 3, 1),
    Sketcher.Constraint("Coincident", 3, 2, 0, 1),
    Sketcher.Constraint("Coincident", 4, 2, 5, 1),
    Sketcher.Constraint("Coincident", 5, 2, 6, 1),
    Sketcher.Constraint("Coincident", 6, 2, 7, 1),
    Sketcher.Constraint("Coincident", 7, 2, 4, 1),
    Sketcher.Constraint("Coincident", 8, 2, 9, 1),
    Sketcher.Constraint("Coincident", 9, 2, 10, 1),
    Sketcher.Constraint("Coincident", 10, 2, 11, 1),
    Sketcher.Constraint("Coincident", 11, 2, 8, 1),
    Sketcher.Constraint("Coincident", 12, 2, 13, 1),
    Sketcher.Constraint("Coincident", 13, 2, 14, 1),
    Sketcher.Constraint("Coincident", 14, 2, 15, 1),
    Sketcher.Constraint("Coincident", 15, 2, 12, 1),
    Sketcher.Constraint("Vertical", 0),
    Sketcher.Constraint("Horizontal", 1),
    Sketcher.Constraint("Vertical", 2),
    Sketcher.Constraint("Horizontal", 3),
    Sketcher.Constraint("Horizontal", 4),
    Sketcher.Constraint("Vertical", 5),
    Sketcher.Constraint("Horizontal", 6),
    Sketcher.Constraint("Vertical", 7),
    Sketcher.Constraint("Vertical", 8),
    Sketcher.Constraint("Horizontal", 9),
    Sketcher.Constraint("Vertical", 10),
    Sketcher.Constraint("Horizontal", 11),
    Sketcher.Constraint("Horizontal", 12),
    Sketcher.Constraint("Vertical", 13),
    Sketcher.Constraint("Horizontal", 14),
    Sketcher.Constraint("Vertical", 15),
    Sketcher.Constraint("Horizontal", 3, 2, 4, 2),
    Sketcher.Constraint("Horizontal", 1, 2, 5, 2),
    Sketcher.Constraint("Horizontal", 9, 2, 12, 2),
    Sketcher.Constraint("Horizontal", 11, 2, 13, 2),
    Sketcher.Constraint("Equal", 3, 4),
    Sketcher.Constraint("Equal", 6, 9),
    Sketcher.Constraint("Equal", 11, 12),
    Sketcher.Constraint("Equal", 14, 0),
    Sketcher.Constraint("Equal", 7, 8),
    Sketcher.Constraint("DistanceX", 1, 2, 1, 1, Q("6 mm")),
    Sketcher.Constraint("DistanceX", 3, 2, 4, 2, Q("44 mm")),
    Sketcher.Constraint("DistanceX", 8, 2, 6, 2, Q("9 mm")),
    Sketcher.Constraint("DistanceY", 8, 2, 7, 2, Q("58 mm")),
    Sketcher.Constraint("DistanceX", 12, 2, 9, 2, Q("26 mm")),
    Sketcher.Constraint("DistanceX", 0, 2, -1, 1, Q("48 mm")),
    Sketcher.Constraint("DistanceY", -1, 1, 0, 2, Q("19 mm")),
])
pad13 = body.newObject("PartDesign::Pad", "Pad012")
pad13.Profile = sketch13
pad13.Length = 26
pad13.Reversed = True

# Sketch on XY plane
sketch14 = body.newObject("Sketcher::SketchObject", "Sketch013")
sketch14.AttachmentSupport = (doc.getObject("XY_Plane"), [""])
sketch14.MapMode = "FlatFace"
sketch14.addGeometry([
    Part.LineSegment(App.Vector(76, -7, 0), App.Vector(76, 0, 0)),
    Part.LineSegment(App.Vector(76, 0, 0), App.Vector(68, 0, 0)),
    Part.LineSegment(App.Vector(68, 0, 0), App.Vector(68, -9, 0)),
    Part.ArcOfCircle(Part.Circle(App.Vector(68, 9, 0), App.Vector(0, 0, 1), 18), math.radians(-90), math.radians(-65)),
], False)
sketch14.addGeometry(Part.LineSegment(App.Vector(68, 9, 0), App.Vector(68, -9, 0)), True)  # axis
sketch14.addConstraint([
    Sketcher.Constraint("Coincident", 0, 2, 1, 1),
    Sketcher.Constraint("Coincident", 1, 2, 2, 1),
    Sketcher.Constraint("Coincident", 2, 2, 3, 1),
    Sketcher.Constraint("Coincident", 3, 2, 0, 1),
    Sketcher.Constraint("Vertical", 0),
    Sketcher.Constraint("Horizontal", 1),
    Sketcher.Constraint("Vertical", 2),
    Sketcher.Constraint("Vertical", 4),
    Sketcher.Constraint("Coincident", 4, 1, 3, 3),
    Sketcher.Constraint("Coincident", 4, 2, 2, 2),
    Sketcher.Constraint("PointOnObject", 0, 2, -1),
    Sketcher.Constraint("DistanceX", 1, 2, 1, 1, Q("7.5 mm")),
    Sketcher.Constraint("DistanceY", 2, 2, 2, 1, Q("9.1 mm")),
    Sketcher.Constraint("DistanceX", -1, 1, 0, 2, Q("76 mm")),
    Sketcher.Constraint("Radius", 3, Q("17.7202 mm")),
])
revolution = body.newObject("PartDesign::Revolution", "Revolution")
revolution.Profile = sketch14
revolution.ReferenceAxis = (sketch14, ["Axis0"])
revolution.Angle = 360

# Sketch on XZ plane
sketch15 = body.newObject("Sketcher::SketchObject", "Sketch014")
sketch15.AttachmentSupport = (doc.getObject("XZ_Plane"), [""])
sketch15.MapMode = "FlatFace"
sketch15.AttachmentOffset = App.Placement(App.Vector(0, 0, -1.8), App.Rotation())
sketch15.addGeometry([
    Part.LineSegment(App.Vector(80, 47, 0), App.Vector(80, 90, 0)),
    Part.LineSegment(App.Vector(80, 90, 0), App.Vector(100, 90, 0)),
    Part.LineSegment(App.Vector(100, 90, 0), App.Vector(100, 47, 0)),
    Part.LineSegment(App.Vector(100, 47, 0), App.Vector(80, 47, 0)),
], False)
sketch15.addConstraint([
    Sketcher.Constraint("Coincident", 0, 2, 1, 1),
    Sketcher.Constraint("Coincident", 1, 2, 2, 1),
    Sketcher.Constraint("Coincident", 2, 2, 3, 1),
    Sketcher.Constraint("Coincident", 3, 2, 0, 1),
    Sketcher.Constraint("Vertical", 0),
    Sketcher.Constraint("Horizontal", 1),
    Sketcher.Constraint("Vertical", 2),
    Sketcher.Constraint("Horizontal", 3),
    Sketcher.Constraint("DistanceX", 1, 1, 1, 2, Q("20.9 mm")),
    Sketcher.Constraint("DistanceY", 0, 1, 0, 2, Q("43.2 mm")),
    Sketcher.Constraint("DistanceX", -1, 1, 0, 2, Q("79.6 mm")),
    Sketcher.Constraint("DistanceY", -1, 1, 0, 2, Q("90.5 mm")),
])
pad14 = body.newObject("PartDesign::Pad", "Pad013")
pad14.Profile = sketch15
pad14.Length = 14.8
pad14.Reversed = True

doc.recompute()
